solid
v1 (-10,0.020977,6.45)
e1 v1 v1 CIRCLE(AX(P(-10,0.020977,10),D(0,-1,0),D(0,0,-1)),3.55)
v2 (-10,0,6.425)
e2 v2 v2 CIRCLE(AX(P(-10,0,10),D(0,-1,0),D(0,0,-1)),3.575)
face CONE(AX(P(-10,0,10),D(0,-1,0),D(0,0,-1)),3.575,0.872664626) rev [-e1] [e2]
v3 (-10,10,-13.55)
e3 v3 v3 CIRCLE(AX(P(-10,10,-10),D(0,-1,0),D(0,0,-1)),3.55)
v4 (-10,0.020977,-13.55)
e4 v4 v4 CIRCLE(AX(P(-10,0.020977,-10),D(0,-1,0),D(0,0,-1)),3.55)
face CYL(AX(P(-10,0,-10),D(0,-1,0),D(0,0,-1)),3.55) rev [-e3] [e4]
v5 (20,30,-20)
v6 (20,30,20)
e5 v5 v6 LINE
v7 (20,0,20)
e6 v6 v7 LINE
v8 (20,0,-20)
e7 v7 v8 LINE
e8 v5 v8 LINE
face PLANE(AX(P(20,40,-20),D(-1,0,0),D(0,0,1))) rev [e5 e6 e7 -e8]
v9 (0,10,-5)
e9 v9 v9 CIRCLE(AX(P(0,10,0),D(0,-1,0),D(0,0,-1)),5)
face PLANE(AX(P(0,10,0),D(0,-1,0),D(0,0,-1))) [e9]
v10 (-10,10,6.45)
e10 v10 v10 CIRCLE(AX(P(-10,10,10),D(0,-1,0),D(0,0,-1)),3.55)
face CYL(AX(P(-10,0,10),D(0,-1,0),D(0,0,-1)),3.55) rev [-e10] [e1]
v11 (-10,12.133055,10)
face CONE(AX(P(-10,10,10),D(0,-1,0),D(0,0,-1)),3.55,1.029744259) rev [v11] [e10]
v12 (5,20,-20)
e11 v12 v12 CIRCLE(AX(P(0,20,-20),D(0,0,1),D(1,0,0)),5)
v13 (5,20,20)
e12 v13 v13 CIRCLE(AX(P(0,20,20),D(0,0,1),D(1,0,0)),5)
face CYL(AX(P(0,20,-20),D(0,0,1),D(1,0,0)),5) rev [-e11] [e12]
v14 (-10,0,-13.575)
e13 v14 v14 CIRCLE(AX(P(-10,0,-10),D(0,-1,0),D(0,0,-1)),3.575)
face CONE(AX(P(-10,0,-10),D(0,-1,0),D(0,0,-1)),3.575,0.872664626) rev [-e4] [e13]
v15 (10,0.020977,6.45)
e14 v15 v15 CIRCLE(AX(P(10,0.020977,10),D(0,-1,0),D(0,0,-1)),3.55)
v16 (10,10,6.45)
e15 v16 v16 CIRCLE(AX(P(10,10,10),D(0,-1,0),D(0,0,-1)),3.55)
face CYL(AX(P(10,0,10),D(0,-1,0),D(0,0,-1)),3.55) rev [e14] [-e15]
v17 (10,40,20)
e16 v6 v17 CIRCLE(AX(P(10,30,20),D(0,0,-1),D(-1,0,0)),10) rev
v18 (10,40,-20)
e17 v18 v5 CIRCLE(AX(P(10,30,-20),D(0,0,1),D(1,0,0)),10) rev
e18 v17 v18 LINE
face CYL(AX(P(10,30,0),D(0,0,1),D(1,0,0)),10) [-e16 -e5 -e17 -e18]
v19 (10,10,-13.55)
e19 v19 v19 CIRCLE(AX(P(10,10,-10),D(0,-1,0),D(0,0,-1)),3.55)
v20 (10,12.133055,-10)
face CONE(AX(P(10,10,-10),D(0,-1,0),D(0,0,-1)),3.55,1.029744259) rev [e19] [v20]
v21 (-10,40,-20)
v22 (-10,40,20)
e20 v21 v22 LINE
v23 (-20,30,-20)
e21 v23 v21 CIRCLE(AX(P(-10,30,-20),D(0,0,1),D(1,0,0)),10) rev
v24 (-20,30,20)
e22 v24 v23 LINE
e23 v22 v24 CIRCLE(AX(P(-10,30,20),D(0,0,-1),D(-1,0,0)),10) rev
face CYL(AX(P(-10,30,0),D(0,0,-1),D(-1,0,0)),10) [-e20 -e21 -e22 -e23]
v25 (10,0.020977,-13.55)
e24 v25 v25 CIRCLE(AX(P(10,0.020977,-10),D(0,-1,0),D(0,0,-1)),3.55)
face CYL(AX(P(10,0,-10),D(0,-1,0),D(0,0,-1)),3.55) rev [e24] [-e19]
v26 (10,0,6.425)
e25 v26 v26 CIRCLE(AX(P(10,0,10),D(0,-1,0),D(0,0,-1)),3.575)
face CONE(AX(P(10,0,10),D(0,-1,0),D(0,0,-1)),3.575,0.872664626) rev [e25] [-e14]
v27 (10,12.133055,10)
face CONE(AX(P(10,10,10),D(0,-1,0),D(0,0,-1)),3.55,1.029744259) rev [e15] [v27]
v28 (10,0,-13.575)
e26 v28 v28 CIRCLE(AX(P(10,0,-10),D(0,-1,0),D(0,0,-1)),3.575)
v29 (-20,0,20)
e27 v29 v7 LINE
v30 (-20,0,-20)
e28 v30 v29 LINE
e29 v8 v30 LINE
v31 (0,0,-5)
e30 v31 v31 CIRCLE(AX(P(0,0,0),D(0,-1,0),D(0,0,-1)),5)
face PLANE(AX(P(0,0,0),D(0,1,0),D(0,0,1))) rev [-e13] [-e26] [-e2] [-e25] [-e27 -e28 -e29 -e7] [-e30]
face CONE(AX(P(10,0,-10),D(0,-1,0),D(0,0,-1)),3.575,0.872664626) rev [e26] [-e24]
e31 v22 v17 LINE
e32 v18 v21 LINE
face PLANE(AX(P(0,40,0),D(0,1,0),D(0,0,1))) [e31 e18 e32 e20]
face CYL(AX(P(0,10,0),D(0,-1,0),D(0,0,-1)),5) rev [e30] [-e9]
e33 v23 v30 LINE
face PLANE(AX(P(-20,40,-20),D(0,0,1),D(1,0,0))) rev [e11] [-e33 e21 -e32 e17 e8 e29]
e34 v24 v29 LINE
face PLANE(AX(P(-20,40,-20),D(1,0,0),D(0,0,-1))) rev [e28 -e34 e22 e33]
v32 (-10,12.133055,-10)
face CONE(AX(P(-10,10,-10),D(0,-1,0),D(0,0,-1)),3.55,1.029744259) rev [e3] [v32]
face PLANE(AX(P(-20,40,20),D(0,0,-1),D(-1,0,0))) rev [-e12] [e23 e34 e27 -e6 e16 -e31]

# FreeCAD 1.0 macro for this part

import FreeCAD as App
import Part
import Sketcher
Q = App.Units.Quantity


def edges_at(feature, points):
    """Names of the edges that pass closest to the given points."""
    edges = feature.Shape.Edges
    near = lambda p: min(range(len(edges)), key=lambda i: edges[i].distToShape(Part.Vertex(*p))[0])
    return sorted({f"Edge{near(p) + 1}" for p in points})


def add_polygon(sketch, points):
    """Adds a closed chain of lines whose ends are joined by coincident constraints."""
    first, n = sketch.GeometryCount, len(points)
    for a, b in zip(points, points[1:] + points[:1]):
        sketch.addGeometry(Part.LineSegment(App.Vector(*a, 0), App.Vector(*b, 0)), False)
    for i in range(n):
        sketch.addConstraint(Sketcher.Constraint("Coincident", first + i, 2, first + (i + 1) % n, 1))

doc = App.newDocument("Part")
body = doc.addObject("PartDesign::Body", "Body")

# Sketch on XZ plane
sketch1 = body.newObject("Sketcher::SketchObject", "Sketch")
sketch1.AttachmentSupport = (doc.getObject("XZ_Plane"), [""])
sketch1.MapMode = "FlatFace"
add_polygon(sketch1, [(-20, -20), (-20, 20), (20, 20), (20, -20)])  # lines 0-3
sketch1.addConstraint([
    Sketcher.Constraint("Vertical", 0),
    Sketcher.Constraint("Horizontal", 1),
    Sketcher.Constraint("Vertical", 2),
    Sketcher.Constraint("Horizontal", 3),
    Sketcher.Constraint("Symmetric", 0, 2, 2, 2, -1, 1),
    Sketcher.Constraint("Equal", 3, 0),
    Sketcher.Constraint("DistanceX", 1, 1, 1, 2, Q("40 mm")),
])
pad1 = body.newObject("PartDesign::Pad", "Pad")
pad1.Profile = sketch1
pad1.Length = 40
pad1.Reversed = True

# Sketch on XY plane
sketch2 = body.newObject("Sketcher::SketchObject", "Sketch001")
sketch2.AttachmentSupport = (doc.getObject("XY_Plane"), [""])
sketch2.MapMode = "FlatFace"
sketch2.AttachmentOffset = App.Placement(App.Vector(0, 0, 20), App.Rotation())
sketch2.addGeometry(Part.Circle(App.Vector(0, 20, 0), App.Vector(0, 0, 1), 5), False)
sketch2.addConstraint([
    Sketcher.Constraint("PointOnObject", 0, 3, -2),
    Sketcher.Constraint("Diameter", 0, Q("10 mm")),
    Sketcher.Constraint("DistanceY", -1, 1, 0, 3, Q("20 mm")),
])
pocket1 = body.newObject("PartDesign::Pocket", "Pocket")
pocket1.Profile = sketch2
pocket1.Type = "ThroughAll"
doc.recompute()

fillet = body.newObject("PartDesign::Fillet", "Fillet")
fillet.Base = (pocket1, edges_at(pocket1, [(-20, 40, 0), (20, 40, 0)]))
fillet.Radius = 10

# Sketch on XZ plane
sketch3 = body.newObject("Sketcher::SketchObject", "Sketch002")
sketch3.AttachmentSupport = (doc.getObject("XZ_Plane"), [""])
sketch3.MapMode = "FlatFace"
sketch3.addGeometry([
    Part.Circle(App.Vector(10, -10, 0), App.Vector(0, 0, 1), 3.5),
    Part.Circle(App.Vector(-10, -10, 0), App.Vector(0, 0, 1), 3.5),
    Part.Circle(App.Vector(10, 10, 0), App.Vector(0, 0, 1), 3.5),
    Part.Circle(App.Vector(-10, 10, 0), App.Vector(0, 0, 1), 3.5),
], False)
sketch3.addConstraint([
    Sketcher.Constraint("Equal", 0, 1),
    Sketcher.Constraint("Equal", 1, 2),
    Sketcher.Constraint("Equal", 2, 3),
    Sketcher.Constraint("Symmetric", 1, 3, 2, 3, -1, 1),
    Sketcher.Constraint("Symmetric", 0, 3, 3, 3, -1, 1),
    Sketcher.Constraint("Symmetric", 0, 3, 1, 3, -2),
    Sketcher.Constraint("Diameter", 0, Q("7.1 mm")),
    Sketcher.Constraint("DistanceX", -1, 1, 0, 3, Q("10 mm")),
    Sketcher.Constraint("DistanceY", 0, 3, -1, 1, Q("10 mm")),
])
doc.recompute()
hole = body.newObject("PartDesign::Hole", "Hole")
hole.Profile = sketch3
hole.ThreadType = "None"
hole.Diameter = 7.1
hole.DepthType = "Dimension"
hole.Depth = 10
hole.DrillPoint = "Angled"
hole.DrillPointAngle = 118
hole.HoleCutType = "Countersink"
hole.HoleCutDiameter = 7.15
hole.HoleCutCountersinkAngle = 100

# Sketch on XZ plane
sketch4 = body.newObject("Sketcher::SketchObject", "Sketch003")
sketch4.AttachmentSupport = (doc.getObject("XZ_Plane"), [""])
sketch4.MapMode = "FlatFace"
sketch4.addGeometry(Part.Circle(App.Vector(0, 0, 0), App.Vector(0, 0, 1), 5), False)
sketch4.addConstraint([
    Sketcher.Constraint("Coincident", 0, 3, -1, 1),
    Sketcher.Constraint("Diameter", 0, Q("10 mm")),
])
pocket2 = body.newObject("PartDesign::Pocket", "Pocket001")
pocket2.Profile = sketch4
pocket2.Length = 10

doc.recompute()
